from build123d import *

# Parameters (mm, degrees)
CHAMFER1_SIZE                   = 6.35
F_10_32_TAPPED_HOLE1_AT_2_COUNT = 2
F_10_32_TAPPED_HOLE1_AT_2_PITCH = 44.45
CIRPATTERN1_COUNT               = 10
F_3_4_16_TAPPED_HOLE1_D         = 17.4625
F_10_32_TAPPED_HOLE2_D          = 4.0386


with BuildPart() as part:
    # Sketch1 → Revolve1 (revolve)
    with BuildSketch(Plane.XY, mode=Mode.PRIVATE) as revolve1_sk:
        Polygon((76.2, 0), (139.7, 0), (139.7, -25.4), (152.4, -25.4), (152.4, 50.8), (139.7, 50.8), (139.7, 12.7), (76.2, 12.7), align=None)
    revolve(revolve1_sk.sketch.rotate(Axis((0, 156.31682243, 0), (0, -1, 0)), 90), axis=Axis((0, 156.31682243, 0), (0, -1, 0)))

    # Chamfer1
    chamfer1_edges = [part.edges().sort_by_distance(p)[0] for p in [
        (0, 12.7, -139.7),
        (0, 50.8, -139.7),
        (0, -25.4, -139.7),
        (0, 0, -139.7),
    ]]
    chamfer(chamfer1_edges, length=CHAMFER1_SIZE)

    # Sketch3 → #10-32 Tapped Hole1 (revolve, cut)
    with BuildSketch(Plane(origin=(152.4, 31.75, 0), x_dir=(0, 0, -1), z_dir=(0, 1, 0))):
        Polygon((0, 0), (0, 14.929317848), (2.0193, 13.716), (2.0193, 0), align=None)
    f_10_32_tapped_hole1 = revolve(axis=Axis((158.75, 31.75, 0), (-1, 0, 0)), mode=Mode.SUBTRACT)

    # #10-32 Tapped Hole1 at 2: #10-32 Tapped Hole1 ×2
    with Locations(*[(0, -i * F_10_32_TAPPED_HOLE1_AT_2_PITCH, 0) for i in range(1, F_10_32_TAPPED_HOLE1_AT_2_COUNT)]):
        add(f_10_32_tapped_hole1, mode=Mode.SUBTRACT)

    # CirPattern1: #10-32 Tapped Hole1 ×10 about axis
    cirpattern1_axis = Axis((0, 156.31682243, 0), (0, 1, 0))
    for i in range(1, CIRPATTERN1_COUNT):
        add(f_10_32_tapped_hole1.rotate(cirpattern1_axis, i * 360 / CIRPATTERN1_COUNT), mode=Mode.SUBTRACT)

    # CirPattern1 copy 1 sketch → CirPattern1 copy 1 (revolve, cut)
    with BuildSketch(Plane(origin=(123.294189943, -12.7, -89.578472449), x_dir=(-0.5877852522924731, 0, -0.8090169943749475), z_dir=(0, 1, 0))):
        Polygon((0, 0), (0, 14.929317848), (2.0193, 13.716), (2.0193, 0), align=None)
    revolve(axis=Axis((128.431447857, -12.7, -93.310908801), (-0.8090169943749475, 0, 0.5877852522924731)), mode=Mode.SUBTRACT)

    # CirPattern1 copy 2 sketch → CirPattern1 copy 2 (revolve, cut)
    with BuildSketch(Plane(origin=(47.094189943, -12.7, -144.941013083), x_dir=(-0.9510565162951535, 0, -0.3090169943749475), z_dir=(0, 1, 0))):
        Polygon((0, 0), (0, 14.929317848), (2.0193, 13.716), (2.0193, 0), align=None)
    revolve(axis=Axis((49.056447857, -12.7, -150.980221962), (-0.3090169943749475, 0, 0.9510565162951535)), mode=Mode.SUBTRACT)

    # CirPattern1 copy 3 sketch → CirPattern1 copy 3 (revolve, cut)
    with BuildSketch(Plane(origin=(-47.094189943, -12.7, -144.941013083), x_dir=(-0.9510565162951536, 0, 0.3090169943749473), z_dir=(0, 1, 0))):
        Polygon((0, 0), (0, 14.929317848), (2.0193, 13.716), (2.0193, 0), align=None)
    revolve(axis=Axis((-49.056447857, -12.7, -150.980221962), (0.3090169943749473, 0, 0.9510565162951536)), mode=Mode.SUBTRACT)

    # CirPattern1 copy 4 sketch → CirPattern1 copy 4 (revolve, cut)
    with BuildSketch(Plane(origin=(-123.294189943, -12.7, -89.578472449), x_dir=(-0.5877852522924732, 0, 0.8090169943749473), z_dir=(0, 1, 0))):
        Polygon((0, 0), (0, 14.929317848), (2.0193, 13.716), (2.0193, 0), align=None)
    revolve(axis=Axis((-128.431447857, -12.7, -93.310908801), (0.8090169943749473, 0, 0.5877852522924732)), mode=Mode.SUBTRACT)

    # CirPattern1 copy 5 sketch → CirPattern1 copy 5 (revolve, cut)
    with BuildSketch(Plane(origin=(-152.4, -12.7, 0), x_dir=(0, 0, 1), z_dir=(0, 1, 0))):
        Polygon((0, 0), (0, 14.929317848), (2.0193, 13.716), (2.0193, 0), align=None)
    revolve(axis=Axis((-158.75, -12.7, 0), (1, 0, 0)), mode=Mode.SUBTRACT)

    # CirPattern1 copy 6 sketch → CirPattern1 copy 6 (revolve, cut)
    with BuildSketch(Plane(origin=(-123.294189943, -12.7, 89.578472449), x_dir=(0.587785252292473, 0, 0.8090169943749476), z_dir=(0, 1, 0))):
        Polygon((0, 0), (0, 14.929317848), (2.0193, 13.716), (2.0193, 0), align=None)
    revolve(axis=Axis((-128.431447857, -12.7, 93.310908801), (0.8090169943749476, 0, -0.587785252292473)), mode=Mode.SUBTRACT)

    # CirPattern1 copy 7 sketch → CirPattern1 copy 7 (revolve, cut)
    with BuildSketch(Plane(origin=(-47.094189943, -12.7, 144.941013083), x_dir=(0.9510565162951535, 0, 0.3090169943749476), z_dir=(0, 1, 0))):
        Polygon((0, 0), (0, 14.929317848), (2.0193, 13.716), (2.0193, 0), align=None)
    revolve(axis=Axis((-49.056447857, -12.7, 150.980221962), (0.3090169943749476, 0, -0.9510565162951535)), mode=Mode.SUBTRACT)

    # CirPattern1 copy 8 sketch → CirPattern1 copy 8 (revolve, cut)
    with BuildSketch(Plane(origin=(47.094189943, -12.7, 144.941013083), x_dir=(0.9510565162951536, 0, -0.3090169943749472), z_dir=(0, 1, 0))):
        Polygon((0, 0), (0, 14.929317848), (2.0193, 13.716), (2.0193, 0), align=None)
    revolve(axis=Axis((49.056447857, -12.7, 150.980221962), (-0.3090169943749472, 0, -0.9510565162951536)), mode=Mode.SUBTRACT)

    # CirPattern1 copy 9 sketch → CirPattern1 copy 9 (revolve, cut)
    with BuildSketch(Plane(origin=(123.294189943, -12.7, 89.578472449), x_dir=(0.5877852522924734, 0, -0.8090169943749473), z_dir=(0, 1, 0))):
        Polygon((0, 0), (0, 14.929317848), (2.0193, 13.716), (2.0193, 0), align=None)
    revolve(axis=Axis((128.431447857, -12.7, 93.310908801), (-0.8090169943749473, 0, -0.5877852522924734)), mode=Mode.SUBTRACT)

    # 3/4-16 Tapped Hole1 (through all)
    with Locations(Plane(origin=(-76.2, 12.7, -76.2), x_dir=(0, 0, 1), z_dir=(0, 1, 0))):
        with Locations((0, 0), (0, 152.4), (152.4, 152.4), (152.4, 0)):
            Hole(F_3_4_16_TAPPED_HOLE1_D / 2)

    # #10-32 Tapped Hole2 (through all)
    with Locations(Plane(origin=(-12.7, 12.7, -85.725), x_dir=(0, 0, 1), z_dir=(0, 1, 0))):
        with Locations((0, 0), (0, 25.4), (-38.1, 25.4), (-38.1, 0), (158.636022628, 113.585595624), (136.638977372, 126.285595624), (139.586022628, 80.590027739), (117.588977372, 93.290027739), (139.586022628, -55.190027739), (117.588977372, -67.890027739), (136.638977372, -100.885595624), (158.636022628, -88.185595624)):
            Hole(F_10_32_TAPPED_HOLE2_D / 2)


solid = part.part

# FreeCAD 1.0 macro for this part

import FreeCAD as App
import Part
import Sketcher

V = App.Vector
Q = App.Units.Quantity


def edges_at(feature, points):
    """Names of the edges that pass closest to the given points."""
    edges = feature.Shape.Edges
    near = lambda p: min(range(len(edges)), key=lambda i: edges[i].distToShape(Part.Vertex(*p))[0])
    return sorted({f"Edge{near(p) + 1}" for p in points})


def add_polygon(sketch, points):
    """Adds a closed chain of lines whose ends are joined by coincident constraints."""
    first, n = sketch.GeometryCount, len(points)
    for a, b in zip(points, points[1:] + points[:1]):
        sketch.addGeometry(Part.LineSegment(App.Vector(*a, 0), App.Vector(*b, 0)), False)
    for i in range(n):
        sketch.addConstraint(Sketcher.Constraint("Coincident", first + i, 2, first + (i + 1) % n, 1))

doc = App.newDocument("Part")
body = doc.addObject("PartDesign::Body", "Body")

# Sketch on XY plane
sketch1 = body.newObject("Sketcher::SketchObject", "Sketch")
sketch1.AttachmentSupport = (doc.getObject("XY_Plane"), [""])
sketch1.MapMode = "FlatFace"
add_polygon(sketch1, [(76, 0), (140, 0), (140, -25), (152, -25), (152, 51), (140, 51), (140, 13), (76, 13)])  # lines 0-7
sketch1.addConstraint(Sketcher.Constraint("Horizontal", 0))
sketch1.addConstraint(Sketcher.Constraint("Vertical", 1))
sketch1.addConstraint(Sketcher.Constraint("Horizontal", 2))
sketch1.addConstraint(Sketcher.Constraint("Vertical", 3))
sketch1.addConstraint(Sketcher.Constraint("Horizontal", 4))
sketch1.addConstraint(Sketcher.Constraint("Vertical", 5))
sketch1.addConstraint(Sketcher.Constraint("Horizontal", 6))
sketch1.addConstraint(Sketcher.Constraint("Vertical", 7))
sketch1.addConstraint(Sketcher.Constraint("PointOnObject", 0, 2, -1))
sketch1.addConstraint(Sketcher.Constraint("Vertical", 1, 2, 4, 2))
sketch1.addConstraint(Sketcher.Constraint("Equal", 4, 7))
sketch1.addConstraint(Sketcher.Constraint("DistanceY", 1, 2, 1, 1, Q("1 in")))
sketch1.addConstraint(Sketcher.Constraint("DistanceY", 3, 1, 3, 2, Q("3 in")))
sketch1.addConstraint(Sketcher.Constraint("DistanceX", 0, 1, 0, 2, Q("2.5 in")))
sketch1.addConstraint(Sketcher.Constraint("DistanceX", 2, 1, 2, 2, Q("0.5 in")))
sketch1.addConstraint(Sketcher.Constraint("DistanceX", -1, 1, 2, 2, Q("6 in")))
revolution = body.newObject("PartDesign::Revolution", "Revolution")
revolution.Profile = sketch1
revolution.ReferenceAxis = (sketch1, ["V_Axis"])
revolution.Angle = 360
doc.recompute()

chamfer = body.newObject("PartDesign::Chamfer", "Chamfer")
chamfer.Base = (revolution, edges_at(revolution, [
    (0, 12.7, -139.7),
    (0, 50.8, -139.7),
    (0, -25.4, -139.7),
    (0, 0, -139.7),
]))
chamfer.Size = Q("0.25 in")

# Sketch on XZ plane
sketch2 = body.newObject("Sketcher::SketchObject", "Sketch001")
sketch2.AttachmentSupport = (doc.getObject("XZ_Plane"), [""])
sketch2.MapMode = "FlatFace"
sketch2.AttachmentOffset = App.Placement(V(0, 0, -1.25 * 25.4), App.Rotation())
add_polygon(sketch2, [(137.5, 0), (152.4, 0), (152.4, -2), (138.7, -2)])  # lines 0-3
sketch2.addConstraint(Sketcher.Constraint("Horizontal", 0))
sketch2.addConstraint(Sketcher.Constraint("Vertical", 1))
sketch2.addConstraint(Sketcher.Constraint("Horizontal", 2))
sketch2.addConstraint(Sketcher.Constraint("PointOnObject", 0, 2, -1))
sketch2.addConstraint(Sketcher.Constraint("DistanceX", -1, 1, 0, 2, Q("6 in")))
sketch2.addConstraint(Sketcher.Constraint("Angle", 3, Q("121 deg")))
sketch2.addConstraint(Sketcher.Constraint("DistanceX", 2, 2, 2, 1, Q("0.54 in")))
sketch2.addConstraint(Sketcher.Constraint("DistanceY", 1, 2, 1, 1, Q("0.0795 in")))
groove = body.newObject("PartDesign::Groove", "Groove")
groove.Profile = sketch2
groove.ReferenceAxis = (sketch2, ["H_Axis"])
groove.Angle = 360
doc.recompute()

linearpattern = body.newObject("PartDesign::LinearPattern", "LinearPattern")
linearpattern.Originals = [groove]
linearpattern.Direction = (doc.getObject("Y_Axis"), [""])
linearpattern.Mode = "offset"
linearpattern.Offset = Q("1.75 in")
linearpattern.Occurrences = 2
linearpattern.Reversed = True
body.Tip = linearpattern
doc.recompute()

polarpattern = body.newObject("PartDesign::PolarPattern", "PolarPattern")
polarpattern.Originals = [groove]
polarpattern.Axis = (doc.getObject("Y_Axis"), [""])
polarpattern.Angle = 360
polarpattern.Occurrences = 10
body.Tip = polarpattern

# Sketch on XZ plane
sketch3 = body.newObject("Sketcher::SketchObject", "Sketch002")
sketch3.AttachmentSupport = (doc.getObject("XZ_Plane"), [""])
sketch3.MapMode = "FlatFace"
sketch3.AttachmentOffset = App.Placement(V(0, 0, 0.5 * 25.4), App.Rotation())
add_polygon(sketch3, [(111.2, -80.8), (123.3, -89.6), (122.1, -91.2), (111, -83.2)])  # lines 0-3
sketch3.addGeometry(Part.LineSegment(V(123.3, -89.6, 0), V(111.2, -80.8, 0)), True)  # axis
sketch3.addConstraint(Sketcher.Constraint("Coincident", 4, 1, 0, 2))
sketch3.addConstraint(Sketcher.Constraint("Coincident", 4, 2, 3, 2))
sketch3.addConstraint(Sketcher.Constraint("Perpendicular", 0, 1))
sketch3.addConstraint(Sketcher.Constraint("Perpendicular", 1, 2))
sketch3.addConstraint(Sketcher.Constraint("Angle", 0, Q("-36 deg")))
sketch3.addConstraint(Sketcher.Constraint("Angle", 3, Q("85 deg")))
sketch3.addConstraint(Sketcher.Constraint("Distance", 2, Q("0.54 in")))
sketch3.addConstraint(Sketcher.Constraint("Distance", 1, Q("0.0795 in")))
sketch3.addConstraint(Sketcher.Constraint("DistanceX", -1, 1, 2, 2, Q("111.010798 mm")))
sketch3.addConstraint(Sketcher.Constraint("DistanceY", 1, 2, -1, 1, Q("91.21212 mm")))
groove2 = body.newObject("PartDesign::Groove", "Groove001")
groove2.Profile = sketch3
groove2.ReferenceAxis = (sketch3, ["Axis0"])
groove2.Angle = 360

# Sketch on XZ plane
sketch4 = body.newObject("Sketcher::SketchObject", "Sketch003")
sketch4.AttachmentSupport = (doc.getObject("XZ_Plane"), [""])
sketch4.MapMode = "FlatFace"
sketch4.AttachmentOffset = App.Placement(V(0, 0, 0.5 * 25.4), App.Rotation())
add_polygon(sketch4, [(42.5, -130.7), (47.1, -144.9), (45.2, -145.6), (40.9, -132.5)])  # lines 0-3
sketch4.addGeometry(Part.LineSegment(V(47.1, -144.9, 0), V(42.5, -130.7, 0)), True)  # axis
sketch4.addConstraint(Sketcher.Constraint("Coincident", 4, 1, 0, 2))
sketch4.addConstraint(Sketcher.Constraint("Coincident", 4, 2, 3, 2))
sketch4.addConstraint(Sketcher.Constraint("Perpendicular", 0, 1))
sketch4.addConstraint(Sketcher.Constraint("Perpendicular", 1, 2))
sketch4.addConstraint(Sketcher.Constraint("Angle", 0, Q("-72 deg")))
sketch4.addConstraint(Sketcher.Constraint("Angle", 3, Q("49 deg")))
sketch4.addConstraint(Sketcher.Constraint("Distance", 2, Q("0.54 in")))
sketch4.addConstraint(Sketcher.Constraint("Distance", 1, Q("0.0795 in")))
sketch4.addConstraint(Sketcher.Constraint("DistanceX", -1, 1, 0, 2, Q("47.09419 mm")))
sketch4.addConstraint(Sketcher.Constraint("DistanceY", 1, 2, -1, 1, Q("145.565011 mm")))
groove3 = body.newObject("PartDesign::Groove", "Groove002")
groove3.Profile = sketch4
groove3.ReferenceAxis = (sketch4, ["Axis0"])
groove3.Angle = 360

# Sketch on XZ plane
sketch5 = body.newObject("Sketcher::SketchObject", "Sketch004")
sketch5.AttachmentSupport = (doc.getObject("XZ_Plane"), [""])
sketch5.MapMode = "FlatFace"
sketch5.AttachmentOffset = App.Placement(V(0, 0, 0.5 * 25.4), App.Rotation())
add_polygon(sketch5, [(-42.5, -130.7), (-47.1, -144.9), (-49, -144.3), (-44.8, -131.3)])  # lines 0-3
sketch5.addGeometry(Part.LineSegment(V(-47.1, -144.9, 0), V(-42.5, -130.7, 0)), True)  # axis
sketch5.addConstraint(Sketcher.Constraint("Coincident", 4, 1, 0, 2))
sketch5.addConstraint(Sketcher.Constraint("Coincident", 4, 2, 3, 2))
sketch5.addConstraint(Sketcher.Constraint("Perpendicular", 0, 1))
sketch5.addConstraint(Sketcher.Constraint("Perpendicular", 1, 2))
sketch5.addConstraint(Sketcher.Constraint("Angle", 0, Q("-108 deg")))
sketch5.addConstraint(Sketcher.Constraint("Angle", 3, Q("13 deg")))
sketch5.addConstraint(Sketcher.Constraint("Distance", 2, Q("0.54 in")))
sketch5.addConstraint(Sketcher.Constraint("Distance", 1, Q("0.0795 in")))
sketch5.addConstraint(Sketcher.Constraint("DistanceX", 0, 2, -1, 1, Q("47.09419 mm")))
sketch5.addConstraint(Sketcher.Constraint("DistanceY", 3, 2, -1, 1, Q("130.742388 mm")))
groove4 = body.newObject("PartDesign::Groove", "Groove003")
groove4.Profile = sketch5
groove4.ReferenceAxis = (sketch5, ["Axis0"])
groove4.Angle = 360

# Sketch on XZ plane
sketch6 = body.newObject("Sketcher::SketchObject", "Sketch005")
sketch6.AttachmentSupport = (doc.getObject("XZ_Plane"), [""])
sketch6.MapMode = "FlatFace"
sketch6.AttachmentOffset = App.Placement(V(0, 0, 0.5 * 25.4), App.Rotation())
add_polygon(sketch6, [(-111.2, -80.8), (-123.3, -89.6), (-124.5, -87.9), (-113.4, -79.9)])  # lines 0-3
sketch6.addGeometry(Part.LineSegment(V(-123.3, -89.6, 0), V(-111.2, -80.8, 0)), True)  # axis
sketch6.addConstraint(Sketcher.Constraint("Coincident", 4, 1, 0, 2))
sketch6.addConstraint(Sketcher.Constraint("Coincident", 4, 2, 3, 2))
sketch6.addConstraint(Sketcher.Constraint("Perpendicular", 0, 1))
sketch6.addConstraint(Sketcher.Constraint("Perpendicular", 1, 2))
sketch6.addConstraint(Sketcher.Constraint("Angle", 0, Q("-144 deg")))
sketch6.addConstraint(Sketcher.Constraint("Angle", 3, Q("-23 deg")))
sketch6.addConstraint(Sketcher.Constraint("Distance", 2, Q("0.54 in")))
sketch6.addConstraint(Sketcher.Constraint("Distance", 1, Q("0.0795 in")))
sketch6.addConstraint(Sketcher.Constraint("DistanceX", 0, 2, -1, 1, Q("123.29419 mm")))
sketch6.addConstraint(Sketcher.Constraint("DistanceY", 2, 2, -1, 1, Q("79.882762 mm")))
groove5 = body.newObject("PartDesign::Groove", "Groove004")
groove5.Profile = sketch6
groove5.ReferenceAxis = (sketch6, ["Axis0"])
groove5.Angle = 360

# Sketch on XZ plane
sketch7 = body.newObject("Sketcher::SketchObject", "Sketch006")
sketch7.AttachmentSupport = (doc.getObject("XZ_Plane"), [""])
sketch7.MapMode = "FlatFace"
sketch7.AttachmentOffset = App.Placement(V(0, 0, 0.5 * 25.4), App.Rotation())
add_polygon(sketch7, [(-137.5, 0), (-152.4, 0), (-152.4, 2), (-138.7, 2)])  # lines 0-3
sketch7.addConstraint(Sketcher.Constraint("Horizontal", 0))
sketch7.addConstraint(Sketcher.Constraint("Vertical", 1))
sketch7.addConstraint(Sketcher.Constraint("Horizontal", 2))
sketch7.addConstraint(Sketcher.Constraint("PointOnObject", 0, 2, -1))
sketch7.addConstraint(Sketcher.Constraint("DistanceX", 0, 2, -1, 1, Q("6 in")))
sketch7.addConstraint(Sketcher.Constraint("Angle", 3, Q("-59 deg")))
sketch7.addConstraint(Sketcher.Constraint("DistanceX", 2, 1, 2, 2, Q("0.54 in")))
sketch7.addConstraint(Sketcher.Constraint("DistanceY", 1, 1, 1, 2, Q("0.0795 in")))
groove6 = body.newObject("PartDesign::Groove", "Groove005")
groove6.Profile = sketch7
groove6.ReferenceAxis = (sketch7, ["H_Axis"])
groove6.Angle = 360

# Sketch on XZ plane
sketch8 = body.newObject("Sketcher::SketchObject", "Sketch007")
sketch8.AttachmentSupport = (doc.getObject("XZ_Plane"), [""])
sketch8.MapMode = "FlatFace"
sketch8.AttachmentOffset = App.Placement(V(0, 0, 0.5 * 25.4), App.Rotation())
add_polygon(sketch8, [(-111.2, 80.8), (-123.3, 89.6), (-122.1, 91.2), (-111, 83.2)])  # lines 0-3
sketch8.addGeometry(Part.LineSegment(V(-123.3, 89.6, 0), V(-111.2, 80.8, 0)), True)  # axis
sketch8.addConstraint(Sketcher.Constraint("Coincident", 4, 1, 0, 2))
sketch8.addConstraint(Sketcher.Constraint("Coincident", 4, 2, 3, 2))
sketch8.addConstraint(Sketcher.Constraint("Perpendicular", 0, 1))
sketch8.addConstraint(Sketcher.Constraint("Perpendicular", 1, 2))
sketch8.addConstraint(Sketcher.Constraint("Angle", 0, Q("144 deg")))
sketch8.addConstraint(Sketcher.Constraint("Angle", 3, Q("-95 deg")))
sketch8.addConstraint(Sketcher.Constraint("Distance", 2, Q("0.54 in")))
sketch8.addConstraint(Sketcher.Constraint("Distance", 1, Q("0.0795 in")))
sketch8.addConstraint(Sketcher.Constraint("DistanceX", 2, 2, -1, 1, Q("111.010798 mm")))
sketch8.addConstraint(Sketcher.Constraint("DistanceY", -1, 1, 1, 2, Q("91.21212 mm")))
groove7 = body.newObject("PartDesign::Groove", "Groove006")
groove7.Profile = sketch8
groove7.ReferenceAxis = (sketch8, ["Axis0"])
groove7.Angle = 360

# Sketch on XZ plane
sketch9 = body.newObject("Sketcher::SketchObject", "Sketch008")
sketch9.AttachmentSupport = (doc.getObject("XZ_Plane"), [""])
sketch9.MapMode = "FlatFace"
sketch9.AttachmentOffset = App.Placement(V(0, 0, 0.5 * 25.4), App.Rotation())
add_polygon(sketch9, [(-42.5, 130.7), (-47.1, 144.9), (-45.2, 145.6), (-40.9, 132.5)])  # lines 0-3
sketch9.addGeometry(Part.LineSegment(V(-47.1, 144.9, 0), V(-42.5, 130.7, 0)), True)  # axis
sketch9.addConstraint(Sketcher.Constraint("Coincident", 4, 1, 0, 2))
sketch9.addConstraint(Sketcher.Constraint("Coincident", 4, 2, 3, 2))
sketch9.addConstraint(Sketcher.Constraint("Perpendicular", 0, 1))
sketch9.addConstraint(Sketcher.Constraint("Perpendicular", 1, 2))
sketch9.addConstraint(Sketcher.Constraint("Angle", 0, Q("108 deg")))
sketch9.addConstraint(Sketcher.Constraint("Angle", 3, Q("-131 deg")))
sketch9.addConstraint(Sketcher.Constraint("Distance", 2, Q("0.54 in")))
sketch9.addConstraint(Sketcher.Constraint("Distance", 1, Q("0.0795 in")))
sketch9.addConstraint(Sketcher.Constraint("DistanceX", 0, 2, -1, 1, Q("47.09419 mm")))
sketch9.addConstraint(Sketcher.Constraint("DistanceY", -1, 1, 1, 2, Q("145.565011 mm")))
groove8 = body.newObject("PartDesign::Groove", "Groove007")
groove8.Profile = sketch9
groove8.ReferenceAxis = (sketch9, ["Axis0"])
groove8.Angle = 360

# Sketch on XZ plane
sketch10 = body.newObject("Sketcher::SketchObject", "Sketch009")
sketch10.AttachmentSupport = (doc.getObject("XZ_Plane"), [""])
sketch10.MapMode = "FlatFace"
sketch10.AttachmentOffset = App.Placement(V(0, 0, 0.5 * 25.4), App.Rotation())
add_polygon(sketch10, [(42.5, 130.7), (47.1, 144.9), (49, 144.3), (44.8, 131.3)])  # lines 0-3
sketch10.addGeometry(Part.LineSegment(V(47.1, 144.9, 0), V(42.5, 130.7, 0)), True)  # axis
sketch10.addConstraint(Sketcher.Constraint("Coincident", 4, 1, 0, 2))
sketch10.addConstraint(Sketcher.Constraint("Coincident", 4, 2, 3, 2))
sketch10.addConstraint(Sketcher.Constraint("Perpendicular", 0, 1))
sketch10.addConstraint(Sketcher.Constraint("Perpendicular", 1, 2))
sketch10.addConstraint(Sketcher.Constraint("Angle", 0, Q("72 deg")))
sketch10.addConstraint(Sketcher.Constraint("Angle", 3, Q("-167 deg")))
sketch10.addConstraint(Sketcher.Constraint("Distance", 2, Q("0.54 in")))
sketch10.addConstraint(Sketcher.Constraint("Distance", 1, Q("0.0795 in")))
sketch10.addConstraint(Sketcher.Constraint("DistanceX", -1, 1, 0, 2, Q("47.09419 mm")))
sketch10.addConstraint(Sketcher.Constraint("DistanceY", -1, 1, 3, 2, Q("130.742388 mm")))
groove9 = body.newObject("PartDesign::Groove", "Groove008")
groove9.Profile = sketch10
groove9.ReferenceAxis = (sketch10, ["Axis0"])
groove9.Angle = 360

# Sketch on XZ plane
sketch11 = body.newObject("Sketcher::SketchObject", "Sketch010")
sketch11.AttachmentSupport = (doc.getObject("XZ_Plane"), [""])
sketch11.MapMode = "FlatFace"
sketch11.AttachmentOffset = App.Placement(V(0, 0, 0.5 * 25.4), App.Rotation())
add_polygon(sketch11, [(111.2, 80.8), (123.3, 89.6), (124.5, 87.9), (113.4, 79.9)])  # lines 0-3
sketch11.addGeometry(Part.LineSegment(V(123.3, 89.6, 0), V(111.2, 80.8, 0)), True)  # axis
sketch11.addConstraint(Sketcher.Constraint("Coincident", 4, 1, 0, 2))
sketch11.addConstraint(Sketcher.Constraint("Coincident", 4, 2, 3, 2))
sketch11.addConstraint(Sketcher.Constraint("Perpendicular", 0, 1))
sketch11.addConstraint(Sketcher.Constraint("Perpendicular", 1, 2))
sketch11.addConstraint(Sketcher.Constraint("Angle", 0, Q("36 deg")))
sketch11.addConstraint(Sketcher.Constraint("Angle", 3, Q("157 deg")))
sketch11.addConstraint(Sketcher.Constraint("Distance", 2, Q("0.54 in")))
sketch11.addConstraint(Sketcher.Constraint("Distance", 1, Q("0.0795 in")))
sketch11.addConstraint(Sketcher.Constraint("DistanceX", -1, 1, 0, 2, Q("123.29419 mm")))
sketch11.addConstraint(Sketcher.Constraint("DistanceY", -1, 1, 2, 2, Q("79.882762 mm")))
groove10 = body.newObject("PartDesign::Groove", "Groove009")
groove10.Profile = sketch11
groove10.ReferenceAxis = (sketch11, ["Axis0"])
groove10.Angle = 360

# Sketch on XZ plane
sketch12 = body.newObject("Sketcher::SketchObject", "Sketch011")
sketch12.AttachmentSupport = (doc.getObject("XZ_Plane"), [""])
sketch12.MapMode = "FlatFace"
sketch12.AttachmentOffset = App.Placement(V(0, 0, -0.5 * 25.4), App.Rotation())
sketch12.addGeometry(Part.Circle(V(-76, -76, 0), V(0, 0, 1), 9), False)
sketch12.addGeometry(Part.Circle(V(76, -76, 0), V(0, 0, 1), 9), False)
sketch12.addGeometry(Part.Circle(V(76, 76, 0), V(0, 0, 1), 9), False)
sketch12.addGeometry(Part.Circle(V(-76, 76, 0), V(0, 0, 1), 9), False)
sketch12.addConstraint(Sketcher.Constraint("Equal", 0, 1))
sketch12.addConstraint(Sketcher.Constraint("Equal", 1, 2))
sketch12.addConstraint(Sketcher.Constraint("Equal", 2, 3))
sketch12.addConstraint(Sketcher.Constraint("Symmetric", 0, 3, 2, 3, -1, 1))
sketch12.addConstraint(Sketcher.Constraint("Symmetric", 1, 3, 3, 3, -1, 1))
sketch12.addConstraint(Sketcher.Constraint("Symmetric", 0, 3, 1, 3, -2))
sketch12.addConstraint(Sketcher.Constraint("Diameter", 0, Q("0.6875 in")))
sketch12.addConstraint(Sketcher.Constraint("DistanceX", 0, 3, -1, 1, Q("3 in")))
sketch12.addConstraint(Sketcher.Constraint("DistanceY", 0, 3, -1, 1, Q("3 in")))
doc.recompute()
hole = body.newObject("PartDesign::Hole", "Hole")
hole.Profile = sketch12
hole.ThreadType = "None"
hole.Diameter = Q("0.6875 in")
hole.DepthType = "ThroughAll"
hole.Reversed = True

# Sketch on XZ plane
sketch13 = body.newObject("Sketcher::SketchObject", "Sketch012")
sketch13.AttachmentSupport = (doc.getObject("XZ_Plane"), [""])
sketch13.MapMode = "FlatFace"
sketch13.AttachmentOffset = App.Placement(V(0, 0, -0.5 * 25.4), App.Rotation())
sketch13.addGeometry(Part.Circle(V(-12.7, -85.7, 0), V(0, 0, 1), 2), False)
sketch13.addGeometry(Part.Circle(V(12.7, -85.7, 0), V(0, 0, 1), 2), False)
sketch13.addGeometry(Part.Circle(V(12.7, -123.8, 0), V(0, 0, 1), 2), False)
sketch13.addGeometry(Part.Circle(V(-12.7, -123.8, 0), V(0, 0, 1), 2), False)
sketch13.addGeometry(Part.Circle(V(100.9, 72.9, 0), V(0, 0, 1), 2), False)
sketch13.addGeometry(Part.Circle(V(113.6, 50.9, 0), V(0, 0, 1), 2), False)
sketch13.addGeometry(Part.Circle(V(67.9, 53.9, 0), V(0, 0, 1), 2), False)
sketch13.addGeometry(Part.Circle(V(80.6, 31.9, 0), V(0, 0, 1), 2), False)
sketch13.addGeometry(Part.Circle(V(-67.9, 53.9, 0), V(0, 0, 1), 2), False)
sketch13.addGeometry(Part.Circle(V(-80.6, 31.9, 0), V(0, 0, 1), 2), False)
sketch13.addGeometry(Part.Circle(V(-113.6, 50.9, 0), V(0, 0, 1), 2), False)
sketch13.addGeometry(Part.Circle(V(-100.9, 72.9, 0), V(0, 0, 1), 2), False)
sketch13.addConstraint(Sketcher.Constraint("Equal", 0, 1))
sketch13.addConstraint(Sketcher.Constraint("Equal", 1, 2))
sketch13.addConstraint(Sketcher.Constraint("Equal", 2, 3))
sketch13.addConstraint(Sketcher.Constraint("Equal", 3, 4))
sketch13.addConstraint(Sketcher.Constraint("Equal", 4, 5))
sketch13.addConstraint(Sketcher.Constraint("Equal", 5, 6))
sketch13.addConstraint(Sketcher.Constraint("Equal", 6, 7))
sketch13.addConstraint(Sketcher.Constraint("Equal", 7, 8))
sketch13.addConstraint(Sketcher.Constraint("Equal", 8, 9))
sketch13.addConstraint(Sketcher.Constraint("Equal", 9, 10))
sketch13.addConstraint(Sketcher.Constraint("Equal", 10, 11))
sketch13.addConstraint(Sketcher.Constraint("Symmetric", 0, 3, 1, 3, -2))
sketch13.addConstraint(Sketcher.Constraint("Symmetric", 2, 3, 3, 3, -2))
sketch13.addConstraint(Sketcher.Constraint("Symmetric", 6, 3, 8, 3, -2))
sketch13.addConstraint(Sketcher.Constraint("Symmetric", 7, 3, 9, 3, -2))
sketch13.addConstraint(Sketcher.Constraint("Symmetric", 5, 3, 10, 3, -2))
sketch13.addConstraint(Sketcher.Constraint("Symmetric", 4, 3, 11, 3, -2))
sketch13.addConstraint(Sketcher.Constraint("Vertical", 1, 3, 2, 3))
sketch13.addConstraint(Sketcher.Constraint("Diameter", 0, Q("0.159 in")))
sketch13.addConstraint(Sketcher.Constraint("DistanceX", 0, 3, 1, 3, Q("1 in")))
sketch13.addConstraint(Sketcher.Constraint("DistanceY", 2, 3, 1, 3, Q("1.5 in")))
sketch13.addConstraint(Sketcher.Constraint("DistanceX", 4, 3, 5, 3, Q("0.5 in")))
sketch13.addConstraint(Sketcher.Constraint("DistanceX", 6, 3, 7, 3, Q("0.5 in")))
sketch13.addConstraint(Sketcher.Constraint("DistanceY", 6, 3, 4, 3, Q("0.75 in")))
sketch13.addConstraint(Sketcher.Constraint("DistanceY", 7, 3, 5, 3, Q("0.75 in")))
sketch13.addConstraint(Sketcher.Constraint("DistanceY", 0, 3, -1, 1, Q("3.375 in")))
sketch13.addConstraint(Sketcher.Constraint("DistanceX", -1, 1, 4, 3, Q("100.885596 mm")))
sketch13.addConstraint(Sketcher.Constraint("DistanceY", -1, 1, 4, 3, Q("72.911023 mm")))
sketch13.addConstraint(Sketcher.Constraint("DistanceY", -1, 1, 5, 3, Q("50.913977 mm")))
sketch13.addConstraint(Sketcher.Constraint("DistanceX", -1, 1, 6, 3, Q("67.890028 mm")))
doc.recompute()
hole2 = body.newObject("PartDesign::Hole", "Hole001")
hole2.Profile = sketch13
hole2.ThreadType = "None"
hole2.Diameter = Q("0.159 in")
hole2.DepthType = "ThroughAll"
hole2.Reversed = True

doc.recompute()
